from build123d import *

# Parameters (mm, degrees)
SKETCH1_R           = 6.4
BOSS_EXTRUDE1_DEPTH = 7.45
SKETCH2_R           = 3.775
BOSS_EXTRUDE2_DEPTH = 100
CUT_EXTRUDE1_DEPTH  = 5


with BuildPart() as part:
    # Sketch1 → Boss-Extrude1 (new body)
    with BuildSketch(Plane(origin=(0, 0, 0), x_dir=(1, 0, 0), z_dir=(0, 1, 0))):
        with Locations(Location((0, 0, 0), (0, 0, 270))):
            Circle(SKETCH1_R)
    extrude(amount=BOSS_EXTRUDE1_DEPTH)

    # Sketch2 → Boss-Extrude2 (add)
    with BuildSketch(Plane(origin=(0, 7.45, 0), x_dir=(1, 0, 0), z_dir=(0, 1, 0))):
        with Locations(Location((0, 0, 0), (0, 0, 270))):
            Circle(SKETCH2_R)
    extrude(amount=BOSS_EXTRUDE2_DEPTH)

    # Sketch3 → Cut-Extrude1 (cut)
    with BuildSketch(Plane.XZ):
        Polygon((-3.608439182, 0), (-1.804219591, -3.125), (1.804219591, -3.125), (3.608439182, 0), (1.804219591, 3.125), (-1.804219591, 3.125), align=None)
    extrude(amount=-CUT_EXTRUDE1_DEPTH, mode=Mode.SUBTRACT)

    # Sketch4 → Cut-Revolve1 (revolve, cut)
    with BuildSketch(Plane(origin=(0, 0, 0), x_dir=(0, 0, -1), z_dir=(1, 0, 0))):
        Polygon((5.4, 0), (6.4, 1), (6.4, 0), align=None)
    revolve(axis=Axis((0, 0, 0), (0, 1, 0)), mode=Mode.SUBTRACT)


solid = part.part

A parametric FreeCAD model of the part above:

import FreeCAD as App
import Part
import Sketcher

V = App.Vector
Q = App.Units.Quantity


def add_polygon(sketch, points):
    """Adds a closed chain of lines whose ends are joined by coincident constraints."""
    first, n = sketch.GeometryCount, len(points)
    for a, b in zip(points, points[1:] + points[:1]):
        sketch.addGeometry(Part.LineSegment(App.Vector(*a, 0), App.Vector(*b, 0)), False)
    for i in range(n):
        sketch.addConstraint(Sketcher.Constraint("Coincident", first + i, 2, first + (i + 1) % n, 1))

doc = App.newDocument("Part")
body = doc.addObject("PartDesign::Body", "Body")

sketch1 = body.newObject("Sketcher::SketchObject", "Sketch")
sketch1.AttachmentSupport = (doc.getObject("XZ_Plane"), [""])
sketch1.MapMode = "FlatFace"
sketch1.addGeometry(Part.Circle(V(0, 0, 0), V(0, 0, 1), 6.4), False)
sketch1.addConstraint(Sketcher.Constraint("Coincident", 0, 3, -1, 1))
sketch1.addConstraint(Sketcher.Constraint("Diameter", 0, Q("12.8 mm")))
pad1 = body.newObject("PartDesign::Pad", "Pad")
pad1.Profile = sketch1
pad1.Length = 7.45
pad1.Reversed = True

sketch2 = body.newObject("Sketcher::SketchObject", "Sketch001")
sketch2.AttachmentSupport = (doc.getObject("XZ_Plane"), [""])
sketch2.MapMode = "FlatFace"
sketch2.AttachmentOffset = App.Placement(V(0, 0, -7.45), App.Rotation())
sketch2.addGeometry(Part.Circle(V(0, 0, 0), V(0, 0, 1), 3.775), False)
sketch2.addConstraint(Sketcher.Constraint("Coincident", 0, 3, -1, 1))
sketch2.addConstraint(Sketcher.Constraint("Diameter", 0, Q("7.55 mm")))
pad2 = body.newObject("PartDesign::Pad", "Pad001")
pad2.Profile = sketch2
pad2.Length = 100
pad2.Reversed = True

sketch3 = body.newObject("Sketcher::SketchObject", "Sketch002")
sketch3.AttachmentSupport = (doc.getObject("XZ_Plane"), [""])
sketch3.MapMode = "FlatFace"
add_polygon(sketch3, [(-3.608439, 0), (-1.80422, -3.125), (1.80422, -3.125), (3.608439, 0), (1.80422, 3.125), (-1.80422, 3.125)])
sketch3.addConstraint(Sketcher.Constraint("Horizontal", 1))
sketch3.addConstraint(Sketcher.Constraint("Horizontal", 4))
sketch3.addConstraint(Sketcher.Constraint("Symmetric", 0, 2, 3, 2, -1, 1))
sketch3.addConstraint(Sketcher.Constraint("Symmetric", 2, 2, 5, 2, -1, 1))
sketch3.addConstraint(Sketcher.Constraint("PointOnObject", 2, 2, -1))
sketch3.addConstraint(Sketcher.Constraint("Parallel", 2, 5))
sketch3.addConstraint(Sketcher.Constraint("Vertical", 1, 2, 3, 2))
sketch3.addConstraint(Sketcher.Constraint("Angle", 0, Q("-60 deg")))
sketch3.addConstraint(Sketcher.Constraint("DistanceY", 1, 2, 3, 2, Q("6.25 mm")))
sketch3.addConstraint(Sketcher.Constraint("DistanceX", 1, 1, 1, 2, Q("3.608439 mm")))
pocket1 = body.newObject("PartDesign::Pocket", "Pocket")
pocket1.Profile = sketch3
pocket1.Length = 5

sketch4 = body.newObject("Sketcher::SketchObject", "Sketch003")
sketch4.AttachmentSupport = (doc.getObject("YZ_Plane"), [""])
sketch4.MapMode = "FlatFace"
add_polygon(sketch4, [(1, -6.4), (0, -5.4), (0, -6.4)])
sketch4.addConstraint(Sketcher.Constraint("Vertical", 1))
sketch4.addConstraint(Sketcher.Constraint("Horizontal", 2))
sketch4.addConstraint(Sketcher.Constraint("PointOnObject", 0, 2, -2))
sketch4.addConstraint(Sketcher.Constraint("Equal", 2, 1))
sketch4.addConstraint(Sketcher.Constraint("DistanceX", 2, 1, 2, 2, Q("1 mm")))
sketch4.addConstraint(Sketcher.Constraint("DistanceY", 0, 2, -1, 1, Q("5.4 mm")))
groove = body.newObject("PartDesign::Groove", "Groove")
groove.Profile = sketch4
groove.ReferenceAxis = (sketch4, ["H_Axis"])
groove.Angle = 360

doc.recompute()
